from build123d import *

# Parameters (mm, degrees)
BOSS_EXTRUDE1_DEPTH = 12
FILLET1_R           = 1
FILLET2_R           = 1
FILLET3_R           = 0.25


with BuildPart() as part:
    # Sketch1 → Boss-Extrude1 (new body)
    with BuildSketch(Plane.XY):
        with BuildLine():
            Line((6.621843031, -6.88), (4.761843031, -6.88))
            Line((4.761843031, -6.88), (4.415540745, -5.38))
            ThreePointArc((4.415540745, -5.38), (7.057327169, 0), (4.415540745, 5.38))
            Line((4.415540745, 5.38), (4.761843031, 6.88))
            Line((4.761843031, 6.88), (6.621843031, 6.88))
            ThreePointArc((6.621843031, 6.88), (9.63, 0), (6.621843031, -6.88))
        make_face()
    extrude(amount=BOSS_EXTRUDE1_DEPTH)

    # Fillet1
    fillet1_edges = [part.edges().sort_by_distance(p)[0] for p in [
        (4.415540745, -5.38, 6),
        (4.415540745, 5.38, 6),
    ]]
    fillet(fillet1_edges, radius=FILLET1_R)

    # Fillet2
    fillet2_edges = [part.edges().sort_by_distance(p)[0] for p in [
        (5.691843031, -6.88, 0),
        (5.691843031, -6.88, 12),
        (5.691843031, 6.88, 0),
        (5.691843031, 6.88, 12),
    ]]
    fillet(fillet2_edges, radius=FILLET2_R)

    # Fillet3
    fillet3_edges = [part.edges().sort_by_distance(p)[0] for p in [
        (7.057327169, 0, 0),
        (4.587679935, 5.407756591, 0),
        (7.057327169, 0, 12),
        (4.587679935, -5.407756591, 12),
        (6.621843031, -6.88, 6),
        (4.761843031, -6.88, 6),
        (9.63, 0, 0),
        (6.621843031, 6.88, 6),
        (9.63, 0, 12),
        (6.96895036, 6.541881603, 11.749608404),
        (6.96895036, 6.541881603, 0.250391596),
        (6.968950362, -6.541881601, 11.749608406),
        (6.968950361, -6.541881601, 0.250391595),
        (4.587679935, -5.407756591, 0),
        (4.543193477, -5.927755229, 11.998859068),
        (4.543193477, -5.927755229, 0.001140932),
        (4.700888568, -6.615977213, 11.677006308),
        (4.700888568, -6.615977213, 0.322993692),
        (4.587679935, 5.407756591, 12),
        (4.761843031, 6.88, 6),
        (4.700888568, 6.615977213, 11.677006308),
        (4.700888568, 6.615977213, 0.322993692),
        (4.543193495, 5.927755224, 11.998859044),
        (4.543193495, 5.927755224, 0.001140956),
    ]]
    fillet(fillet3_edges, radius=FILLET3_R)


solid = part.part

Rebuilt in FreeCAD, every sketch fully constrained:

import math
import FreeCAD as App
import Part
import Sketcher
Q = App.Units.Quantity


def edges_at(feature, points):
    """Names of the edges that pass closest to the given points."""
    edges = feature.Shape.Edges
    near = lambda p: min(range(len(edges)), key=lambda i: edges[i].distToShape(Part.Vertex(*p))[0])
    return sorted({f"Edge{near(p) + 1}" for p in points})

doc = App.newDocument("Part")
params = doc.addObject("Spreadsheet::Sheet", "Params")
for row, (alias, value) in enumerate([
    ("sketch1_width", "1.86 mm"),
    ("pad1_length", "12 mm"),
    ("fillet_radius", "1 mm"),
    ("fillet2_radius", "1 mm"),
    ("fillet3_radius", "0.25 mm"),
], start=1):
    params.set(f"A{row}", alias)
    params.set(f"B{row}", "=" + value)
    params.setAlias(f"B{row}", alias)

body = doc.addObject("PartDesign::Body", "Body")

# Sketch on XY plane
sketch1 = body.newObject("Sketcher::SketchObject", "Sketch")
sketch1.AttachmentSupport = (doc.getObject("XY_Plane"), [""])
sketch1.MapMode = "FlatFace"
sketch1.addGeometry([
    Part.LineSegment(App.Vector(4.8, -6.9, 0), App.Vector(6.6, -6.9, 0)),  # 0
    Part.ArcOfCircle(Part.Circle(App.Vector(0.3, 0, 0), App.Vector(0, 0, 1), 9.4), math.radians(-47), math.radians(47)),  # 1
    Part.LineSegment(App.Vector(6.6, 6.9, 0), App.Vector(4.8, 6.9, 0)),  # 2
    Part.LineSegment(App.Vector(4.8, 6.9, 0), App.Vector(4.4, 5.4, 0)),  # 3
    Part.ArcOfCircle(Part.Circle(App.Vector(0.3, 0, 0), App.Vector(0, 0, 1), 6.8), math.radians(-52), math.radians(52)),  # 4
    Part.LineSegment(App.Vector(4.4, -5.4, 0), App.Vector(4.8, -6.9, 0)),  # 5
], False)
sketch1.addConstraint([
    Sketcher.Constraint("Coincident", 0, 2, 1, 1),
    Sketcher.Constraint("Coincident", 1, 2, 2, 1),
    Sketcher.Constraint("Coincident", 2, 2, 3, 1),
    Sketcher.Constraint("Coincident", 3, 2, 4, 2),
    Sketcher.Constraint("Coincident", 4, 1, 5, 1),
    Sketcher.Constraint("Coincident", 5, 2, 0, 1),
    Sketcher.Constraint("Horizontal", 0),
    Sketcher.Constraint("Horizontal", 2),
    Sketcher.Constraint("Coincident", 4, 3, 1, 3),
    Sketcher.Constraint("Symmetric", 0, 2, 1, 2, -1),
    Sketcher.Constraint("Vertical", 3, 2, 4, 1),
    Sketcher.Constraint("Vertical", 2, 2, 5, 2),
    Sketcher.Constraint("Angle", 3, Q("-103 deg")),
    Sketcher.Constraint("DistanceX", 0, 1, 0, 2, Q("1.86 mm")),
    Sketcher.Constraint("DistanceY", 3, 2, 2, 2, Q("1.5 mm")),
    Sketcher.Constraint("DistanceY", 0, 2, -1, 1, Q("6.88 mm")),
    Sketcher.Constraint("Radius", 4, Q("6.79908 mm")),
    Sketcher.Constraint("DistanceX", -1, 1, 3, 2, Q("4.415541 mm")),
])
sketch1.setExpression("Constraints[13]", "Params.sketch1_width")
pad1 = body.newObject("PartDesign::Pad", "Pad")
pad1.Profile = sketch1
pad1.setExpression("Length", "Params.pad1_length")
doc.recompute()

fillet = body.newObject("PartDesign::Fillet", "Fillet")
fillet.Base = (pad1, edges_at(pad1, [(4.416, -5.38, 6), (4.416, 5.38, 6)]))
fillet.setExpression("Radius", "Params.fillet_radius")
doc.recompute()

fillet2 = body.newObject("PartDesign::Fillet", "Fillet001")
fillet2.Base = (fillet, edges_at(fillet, [
    (5.692, -6.88, 0),
    (5.692, -6.88, 12),
    (5.692, 6.88, 0),
    (5.692, 6.88, 12),
]))
fillet2.setExpression("Radius", "Params.fillet2_radius")
doc.recompute()

fillet3 = body.newObject("PartDesign::Fillet", "Fillet002")
fillet3.Base = (fillet2, edges_at(fillet2, [
    (7.057, 0, 0),
    (4.588, 5.408, 0),
    (7.057, 0, 12),
    (4.588, -5.408, 12),
    (6.622, -6.88, 6),
    (4.762, -6.88, 6),
    (9.63, 0, 0),
    (6.622, 6.88, 6),
    (9.63, 0, 12),
    (6.969, 6.542, 11.75),
    (6.969, 6.542, 0.25),
    (6.969, -6.542, 11.75),
    (6.969, -6.542, 0.25),
    (4.588, -5.408, 0),
    (4.543, -5.928, 11.999),
    (4.543, -5.928, 0.001),
    (4.701, -6.616, 11.677),
    (4.701, -6.616, 0.323),
    (4.588, 5.408, 12),
    (4.762, 6.88, 6),
    (4.701, 6.616, 11.677),
    (4.701, 6.616, 0.323),
    (4.543, 5.928, 11.999),
    (4.543, 5.928, 0.001),
]))
fillet3.setExpression("Radius", "Params.fillet3_radius")

doc.recompute()
